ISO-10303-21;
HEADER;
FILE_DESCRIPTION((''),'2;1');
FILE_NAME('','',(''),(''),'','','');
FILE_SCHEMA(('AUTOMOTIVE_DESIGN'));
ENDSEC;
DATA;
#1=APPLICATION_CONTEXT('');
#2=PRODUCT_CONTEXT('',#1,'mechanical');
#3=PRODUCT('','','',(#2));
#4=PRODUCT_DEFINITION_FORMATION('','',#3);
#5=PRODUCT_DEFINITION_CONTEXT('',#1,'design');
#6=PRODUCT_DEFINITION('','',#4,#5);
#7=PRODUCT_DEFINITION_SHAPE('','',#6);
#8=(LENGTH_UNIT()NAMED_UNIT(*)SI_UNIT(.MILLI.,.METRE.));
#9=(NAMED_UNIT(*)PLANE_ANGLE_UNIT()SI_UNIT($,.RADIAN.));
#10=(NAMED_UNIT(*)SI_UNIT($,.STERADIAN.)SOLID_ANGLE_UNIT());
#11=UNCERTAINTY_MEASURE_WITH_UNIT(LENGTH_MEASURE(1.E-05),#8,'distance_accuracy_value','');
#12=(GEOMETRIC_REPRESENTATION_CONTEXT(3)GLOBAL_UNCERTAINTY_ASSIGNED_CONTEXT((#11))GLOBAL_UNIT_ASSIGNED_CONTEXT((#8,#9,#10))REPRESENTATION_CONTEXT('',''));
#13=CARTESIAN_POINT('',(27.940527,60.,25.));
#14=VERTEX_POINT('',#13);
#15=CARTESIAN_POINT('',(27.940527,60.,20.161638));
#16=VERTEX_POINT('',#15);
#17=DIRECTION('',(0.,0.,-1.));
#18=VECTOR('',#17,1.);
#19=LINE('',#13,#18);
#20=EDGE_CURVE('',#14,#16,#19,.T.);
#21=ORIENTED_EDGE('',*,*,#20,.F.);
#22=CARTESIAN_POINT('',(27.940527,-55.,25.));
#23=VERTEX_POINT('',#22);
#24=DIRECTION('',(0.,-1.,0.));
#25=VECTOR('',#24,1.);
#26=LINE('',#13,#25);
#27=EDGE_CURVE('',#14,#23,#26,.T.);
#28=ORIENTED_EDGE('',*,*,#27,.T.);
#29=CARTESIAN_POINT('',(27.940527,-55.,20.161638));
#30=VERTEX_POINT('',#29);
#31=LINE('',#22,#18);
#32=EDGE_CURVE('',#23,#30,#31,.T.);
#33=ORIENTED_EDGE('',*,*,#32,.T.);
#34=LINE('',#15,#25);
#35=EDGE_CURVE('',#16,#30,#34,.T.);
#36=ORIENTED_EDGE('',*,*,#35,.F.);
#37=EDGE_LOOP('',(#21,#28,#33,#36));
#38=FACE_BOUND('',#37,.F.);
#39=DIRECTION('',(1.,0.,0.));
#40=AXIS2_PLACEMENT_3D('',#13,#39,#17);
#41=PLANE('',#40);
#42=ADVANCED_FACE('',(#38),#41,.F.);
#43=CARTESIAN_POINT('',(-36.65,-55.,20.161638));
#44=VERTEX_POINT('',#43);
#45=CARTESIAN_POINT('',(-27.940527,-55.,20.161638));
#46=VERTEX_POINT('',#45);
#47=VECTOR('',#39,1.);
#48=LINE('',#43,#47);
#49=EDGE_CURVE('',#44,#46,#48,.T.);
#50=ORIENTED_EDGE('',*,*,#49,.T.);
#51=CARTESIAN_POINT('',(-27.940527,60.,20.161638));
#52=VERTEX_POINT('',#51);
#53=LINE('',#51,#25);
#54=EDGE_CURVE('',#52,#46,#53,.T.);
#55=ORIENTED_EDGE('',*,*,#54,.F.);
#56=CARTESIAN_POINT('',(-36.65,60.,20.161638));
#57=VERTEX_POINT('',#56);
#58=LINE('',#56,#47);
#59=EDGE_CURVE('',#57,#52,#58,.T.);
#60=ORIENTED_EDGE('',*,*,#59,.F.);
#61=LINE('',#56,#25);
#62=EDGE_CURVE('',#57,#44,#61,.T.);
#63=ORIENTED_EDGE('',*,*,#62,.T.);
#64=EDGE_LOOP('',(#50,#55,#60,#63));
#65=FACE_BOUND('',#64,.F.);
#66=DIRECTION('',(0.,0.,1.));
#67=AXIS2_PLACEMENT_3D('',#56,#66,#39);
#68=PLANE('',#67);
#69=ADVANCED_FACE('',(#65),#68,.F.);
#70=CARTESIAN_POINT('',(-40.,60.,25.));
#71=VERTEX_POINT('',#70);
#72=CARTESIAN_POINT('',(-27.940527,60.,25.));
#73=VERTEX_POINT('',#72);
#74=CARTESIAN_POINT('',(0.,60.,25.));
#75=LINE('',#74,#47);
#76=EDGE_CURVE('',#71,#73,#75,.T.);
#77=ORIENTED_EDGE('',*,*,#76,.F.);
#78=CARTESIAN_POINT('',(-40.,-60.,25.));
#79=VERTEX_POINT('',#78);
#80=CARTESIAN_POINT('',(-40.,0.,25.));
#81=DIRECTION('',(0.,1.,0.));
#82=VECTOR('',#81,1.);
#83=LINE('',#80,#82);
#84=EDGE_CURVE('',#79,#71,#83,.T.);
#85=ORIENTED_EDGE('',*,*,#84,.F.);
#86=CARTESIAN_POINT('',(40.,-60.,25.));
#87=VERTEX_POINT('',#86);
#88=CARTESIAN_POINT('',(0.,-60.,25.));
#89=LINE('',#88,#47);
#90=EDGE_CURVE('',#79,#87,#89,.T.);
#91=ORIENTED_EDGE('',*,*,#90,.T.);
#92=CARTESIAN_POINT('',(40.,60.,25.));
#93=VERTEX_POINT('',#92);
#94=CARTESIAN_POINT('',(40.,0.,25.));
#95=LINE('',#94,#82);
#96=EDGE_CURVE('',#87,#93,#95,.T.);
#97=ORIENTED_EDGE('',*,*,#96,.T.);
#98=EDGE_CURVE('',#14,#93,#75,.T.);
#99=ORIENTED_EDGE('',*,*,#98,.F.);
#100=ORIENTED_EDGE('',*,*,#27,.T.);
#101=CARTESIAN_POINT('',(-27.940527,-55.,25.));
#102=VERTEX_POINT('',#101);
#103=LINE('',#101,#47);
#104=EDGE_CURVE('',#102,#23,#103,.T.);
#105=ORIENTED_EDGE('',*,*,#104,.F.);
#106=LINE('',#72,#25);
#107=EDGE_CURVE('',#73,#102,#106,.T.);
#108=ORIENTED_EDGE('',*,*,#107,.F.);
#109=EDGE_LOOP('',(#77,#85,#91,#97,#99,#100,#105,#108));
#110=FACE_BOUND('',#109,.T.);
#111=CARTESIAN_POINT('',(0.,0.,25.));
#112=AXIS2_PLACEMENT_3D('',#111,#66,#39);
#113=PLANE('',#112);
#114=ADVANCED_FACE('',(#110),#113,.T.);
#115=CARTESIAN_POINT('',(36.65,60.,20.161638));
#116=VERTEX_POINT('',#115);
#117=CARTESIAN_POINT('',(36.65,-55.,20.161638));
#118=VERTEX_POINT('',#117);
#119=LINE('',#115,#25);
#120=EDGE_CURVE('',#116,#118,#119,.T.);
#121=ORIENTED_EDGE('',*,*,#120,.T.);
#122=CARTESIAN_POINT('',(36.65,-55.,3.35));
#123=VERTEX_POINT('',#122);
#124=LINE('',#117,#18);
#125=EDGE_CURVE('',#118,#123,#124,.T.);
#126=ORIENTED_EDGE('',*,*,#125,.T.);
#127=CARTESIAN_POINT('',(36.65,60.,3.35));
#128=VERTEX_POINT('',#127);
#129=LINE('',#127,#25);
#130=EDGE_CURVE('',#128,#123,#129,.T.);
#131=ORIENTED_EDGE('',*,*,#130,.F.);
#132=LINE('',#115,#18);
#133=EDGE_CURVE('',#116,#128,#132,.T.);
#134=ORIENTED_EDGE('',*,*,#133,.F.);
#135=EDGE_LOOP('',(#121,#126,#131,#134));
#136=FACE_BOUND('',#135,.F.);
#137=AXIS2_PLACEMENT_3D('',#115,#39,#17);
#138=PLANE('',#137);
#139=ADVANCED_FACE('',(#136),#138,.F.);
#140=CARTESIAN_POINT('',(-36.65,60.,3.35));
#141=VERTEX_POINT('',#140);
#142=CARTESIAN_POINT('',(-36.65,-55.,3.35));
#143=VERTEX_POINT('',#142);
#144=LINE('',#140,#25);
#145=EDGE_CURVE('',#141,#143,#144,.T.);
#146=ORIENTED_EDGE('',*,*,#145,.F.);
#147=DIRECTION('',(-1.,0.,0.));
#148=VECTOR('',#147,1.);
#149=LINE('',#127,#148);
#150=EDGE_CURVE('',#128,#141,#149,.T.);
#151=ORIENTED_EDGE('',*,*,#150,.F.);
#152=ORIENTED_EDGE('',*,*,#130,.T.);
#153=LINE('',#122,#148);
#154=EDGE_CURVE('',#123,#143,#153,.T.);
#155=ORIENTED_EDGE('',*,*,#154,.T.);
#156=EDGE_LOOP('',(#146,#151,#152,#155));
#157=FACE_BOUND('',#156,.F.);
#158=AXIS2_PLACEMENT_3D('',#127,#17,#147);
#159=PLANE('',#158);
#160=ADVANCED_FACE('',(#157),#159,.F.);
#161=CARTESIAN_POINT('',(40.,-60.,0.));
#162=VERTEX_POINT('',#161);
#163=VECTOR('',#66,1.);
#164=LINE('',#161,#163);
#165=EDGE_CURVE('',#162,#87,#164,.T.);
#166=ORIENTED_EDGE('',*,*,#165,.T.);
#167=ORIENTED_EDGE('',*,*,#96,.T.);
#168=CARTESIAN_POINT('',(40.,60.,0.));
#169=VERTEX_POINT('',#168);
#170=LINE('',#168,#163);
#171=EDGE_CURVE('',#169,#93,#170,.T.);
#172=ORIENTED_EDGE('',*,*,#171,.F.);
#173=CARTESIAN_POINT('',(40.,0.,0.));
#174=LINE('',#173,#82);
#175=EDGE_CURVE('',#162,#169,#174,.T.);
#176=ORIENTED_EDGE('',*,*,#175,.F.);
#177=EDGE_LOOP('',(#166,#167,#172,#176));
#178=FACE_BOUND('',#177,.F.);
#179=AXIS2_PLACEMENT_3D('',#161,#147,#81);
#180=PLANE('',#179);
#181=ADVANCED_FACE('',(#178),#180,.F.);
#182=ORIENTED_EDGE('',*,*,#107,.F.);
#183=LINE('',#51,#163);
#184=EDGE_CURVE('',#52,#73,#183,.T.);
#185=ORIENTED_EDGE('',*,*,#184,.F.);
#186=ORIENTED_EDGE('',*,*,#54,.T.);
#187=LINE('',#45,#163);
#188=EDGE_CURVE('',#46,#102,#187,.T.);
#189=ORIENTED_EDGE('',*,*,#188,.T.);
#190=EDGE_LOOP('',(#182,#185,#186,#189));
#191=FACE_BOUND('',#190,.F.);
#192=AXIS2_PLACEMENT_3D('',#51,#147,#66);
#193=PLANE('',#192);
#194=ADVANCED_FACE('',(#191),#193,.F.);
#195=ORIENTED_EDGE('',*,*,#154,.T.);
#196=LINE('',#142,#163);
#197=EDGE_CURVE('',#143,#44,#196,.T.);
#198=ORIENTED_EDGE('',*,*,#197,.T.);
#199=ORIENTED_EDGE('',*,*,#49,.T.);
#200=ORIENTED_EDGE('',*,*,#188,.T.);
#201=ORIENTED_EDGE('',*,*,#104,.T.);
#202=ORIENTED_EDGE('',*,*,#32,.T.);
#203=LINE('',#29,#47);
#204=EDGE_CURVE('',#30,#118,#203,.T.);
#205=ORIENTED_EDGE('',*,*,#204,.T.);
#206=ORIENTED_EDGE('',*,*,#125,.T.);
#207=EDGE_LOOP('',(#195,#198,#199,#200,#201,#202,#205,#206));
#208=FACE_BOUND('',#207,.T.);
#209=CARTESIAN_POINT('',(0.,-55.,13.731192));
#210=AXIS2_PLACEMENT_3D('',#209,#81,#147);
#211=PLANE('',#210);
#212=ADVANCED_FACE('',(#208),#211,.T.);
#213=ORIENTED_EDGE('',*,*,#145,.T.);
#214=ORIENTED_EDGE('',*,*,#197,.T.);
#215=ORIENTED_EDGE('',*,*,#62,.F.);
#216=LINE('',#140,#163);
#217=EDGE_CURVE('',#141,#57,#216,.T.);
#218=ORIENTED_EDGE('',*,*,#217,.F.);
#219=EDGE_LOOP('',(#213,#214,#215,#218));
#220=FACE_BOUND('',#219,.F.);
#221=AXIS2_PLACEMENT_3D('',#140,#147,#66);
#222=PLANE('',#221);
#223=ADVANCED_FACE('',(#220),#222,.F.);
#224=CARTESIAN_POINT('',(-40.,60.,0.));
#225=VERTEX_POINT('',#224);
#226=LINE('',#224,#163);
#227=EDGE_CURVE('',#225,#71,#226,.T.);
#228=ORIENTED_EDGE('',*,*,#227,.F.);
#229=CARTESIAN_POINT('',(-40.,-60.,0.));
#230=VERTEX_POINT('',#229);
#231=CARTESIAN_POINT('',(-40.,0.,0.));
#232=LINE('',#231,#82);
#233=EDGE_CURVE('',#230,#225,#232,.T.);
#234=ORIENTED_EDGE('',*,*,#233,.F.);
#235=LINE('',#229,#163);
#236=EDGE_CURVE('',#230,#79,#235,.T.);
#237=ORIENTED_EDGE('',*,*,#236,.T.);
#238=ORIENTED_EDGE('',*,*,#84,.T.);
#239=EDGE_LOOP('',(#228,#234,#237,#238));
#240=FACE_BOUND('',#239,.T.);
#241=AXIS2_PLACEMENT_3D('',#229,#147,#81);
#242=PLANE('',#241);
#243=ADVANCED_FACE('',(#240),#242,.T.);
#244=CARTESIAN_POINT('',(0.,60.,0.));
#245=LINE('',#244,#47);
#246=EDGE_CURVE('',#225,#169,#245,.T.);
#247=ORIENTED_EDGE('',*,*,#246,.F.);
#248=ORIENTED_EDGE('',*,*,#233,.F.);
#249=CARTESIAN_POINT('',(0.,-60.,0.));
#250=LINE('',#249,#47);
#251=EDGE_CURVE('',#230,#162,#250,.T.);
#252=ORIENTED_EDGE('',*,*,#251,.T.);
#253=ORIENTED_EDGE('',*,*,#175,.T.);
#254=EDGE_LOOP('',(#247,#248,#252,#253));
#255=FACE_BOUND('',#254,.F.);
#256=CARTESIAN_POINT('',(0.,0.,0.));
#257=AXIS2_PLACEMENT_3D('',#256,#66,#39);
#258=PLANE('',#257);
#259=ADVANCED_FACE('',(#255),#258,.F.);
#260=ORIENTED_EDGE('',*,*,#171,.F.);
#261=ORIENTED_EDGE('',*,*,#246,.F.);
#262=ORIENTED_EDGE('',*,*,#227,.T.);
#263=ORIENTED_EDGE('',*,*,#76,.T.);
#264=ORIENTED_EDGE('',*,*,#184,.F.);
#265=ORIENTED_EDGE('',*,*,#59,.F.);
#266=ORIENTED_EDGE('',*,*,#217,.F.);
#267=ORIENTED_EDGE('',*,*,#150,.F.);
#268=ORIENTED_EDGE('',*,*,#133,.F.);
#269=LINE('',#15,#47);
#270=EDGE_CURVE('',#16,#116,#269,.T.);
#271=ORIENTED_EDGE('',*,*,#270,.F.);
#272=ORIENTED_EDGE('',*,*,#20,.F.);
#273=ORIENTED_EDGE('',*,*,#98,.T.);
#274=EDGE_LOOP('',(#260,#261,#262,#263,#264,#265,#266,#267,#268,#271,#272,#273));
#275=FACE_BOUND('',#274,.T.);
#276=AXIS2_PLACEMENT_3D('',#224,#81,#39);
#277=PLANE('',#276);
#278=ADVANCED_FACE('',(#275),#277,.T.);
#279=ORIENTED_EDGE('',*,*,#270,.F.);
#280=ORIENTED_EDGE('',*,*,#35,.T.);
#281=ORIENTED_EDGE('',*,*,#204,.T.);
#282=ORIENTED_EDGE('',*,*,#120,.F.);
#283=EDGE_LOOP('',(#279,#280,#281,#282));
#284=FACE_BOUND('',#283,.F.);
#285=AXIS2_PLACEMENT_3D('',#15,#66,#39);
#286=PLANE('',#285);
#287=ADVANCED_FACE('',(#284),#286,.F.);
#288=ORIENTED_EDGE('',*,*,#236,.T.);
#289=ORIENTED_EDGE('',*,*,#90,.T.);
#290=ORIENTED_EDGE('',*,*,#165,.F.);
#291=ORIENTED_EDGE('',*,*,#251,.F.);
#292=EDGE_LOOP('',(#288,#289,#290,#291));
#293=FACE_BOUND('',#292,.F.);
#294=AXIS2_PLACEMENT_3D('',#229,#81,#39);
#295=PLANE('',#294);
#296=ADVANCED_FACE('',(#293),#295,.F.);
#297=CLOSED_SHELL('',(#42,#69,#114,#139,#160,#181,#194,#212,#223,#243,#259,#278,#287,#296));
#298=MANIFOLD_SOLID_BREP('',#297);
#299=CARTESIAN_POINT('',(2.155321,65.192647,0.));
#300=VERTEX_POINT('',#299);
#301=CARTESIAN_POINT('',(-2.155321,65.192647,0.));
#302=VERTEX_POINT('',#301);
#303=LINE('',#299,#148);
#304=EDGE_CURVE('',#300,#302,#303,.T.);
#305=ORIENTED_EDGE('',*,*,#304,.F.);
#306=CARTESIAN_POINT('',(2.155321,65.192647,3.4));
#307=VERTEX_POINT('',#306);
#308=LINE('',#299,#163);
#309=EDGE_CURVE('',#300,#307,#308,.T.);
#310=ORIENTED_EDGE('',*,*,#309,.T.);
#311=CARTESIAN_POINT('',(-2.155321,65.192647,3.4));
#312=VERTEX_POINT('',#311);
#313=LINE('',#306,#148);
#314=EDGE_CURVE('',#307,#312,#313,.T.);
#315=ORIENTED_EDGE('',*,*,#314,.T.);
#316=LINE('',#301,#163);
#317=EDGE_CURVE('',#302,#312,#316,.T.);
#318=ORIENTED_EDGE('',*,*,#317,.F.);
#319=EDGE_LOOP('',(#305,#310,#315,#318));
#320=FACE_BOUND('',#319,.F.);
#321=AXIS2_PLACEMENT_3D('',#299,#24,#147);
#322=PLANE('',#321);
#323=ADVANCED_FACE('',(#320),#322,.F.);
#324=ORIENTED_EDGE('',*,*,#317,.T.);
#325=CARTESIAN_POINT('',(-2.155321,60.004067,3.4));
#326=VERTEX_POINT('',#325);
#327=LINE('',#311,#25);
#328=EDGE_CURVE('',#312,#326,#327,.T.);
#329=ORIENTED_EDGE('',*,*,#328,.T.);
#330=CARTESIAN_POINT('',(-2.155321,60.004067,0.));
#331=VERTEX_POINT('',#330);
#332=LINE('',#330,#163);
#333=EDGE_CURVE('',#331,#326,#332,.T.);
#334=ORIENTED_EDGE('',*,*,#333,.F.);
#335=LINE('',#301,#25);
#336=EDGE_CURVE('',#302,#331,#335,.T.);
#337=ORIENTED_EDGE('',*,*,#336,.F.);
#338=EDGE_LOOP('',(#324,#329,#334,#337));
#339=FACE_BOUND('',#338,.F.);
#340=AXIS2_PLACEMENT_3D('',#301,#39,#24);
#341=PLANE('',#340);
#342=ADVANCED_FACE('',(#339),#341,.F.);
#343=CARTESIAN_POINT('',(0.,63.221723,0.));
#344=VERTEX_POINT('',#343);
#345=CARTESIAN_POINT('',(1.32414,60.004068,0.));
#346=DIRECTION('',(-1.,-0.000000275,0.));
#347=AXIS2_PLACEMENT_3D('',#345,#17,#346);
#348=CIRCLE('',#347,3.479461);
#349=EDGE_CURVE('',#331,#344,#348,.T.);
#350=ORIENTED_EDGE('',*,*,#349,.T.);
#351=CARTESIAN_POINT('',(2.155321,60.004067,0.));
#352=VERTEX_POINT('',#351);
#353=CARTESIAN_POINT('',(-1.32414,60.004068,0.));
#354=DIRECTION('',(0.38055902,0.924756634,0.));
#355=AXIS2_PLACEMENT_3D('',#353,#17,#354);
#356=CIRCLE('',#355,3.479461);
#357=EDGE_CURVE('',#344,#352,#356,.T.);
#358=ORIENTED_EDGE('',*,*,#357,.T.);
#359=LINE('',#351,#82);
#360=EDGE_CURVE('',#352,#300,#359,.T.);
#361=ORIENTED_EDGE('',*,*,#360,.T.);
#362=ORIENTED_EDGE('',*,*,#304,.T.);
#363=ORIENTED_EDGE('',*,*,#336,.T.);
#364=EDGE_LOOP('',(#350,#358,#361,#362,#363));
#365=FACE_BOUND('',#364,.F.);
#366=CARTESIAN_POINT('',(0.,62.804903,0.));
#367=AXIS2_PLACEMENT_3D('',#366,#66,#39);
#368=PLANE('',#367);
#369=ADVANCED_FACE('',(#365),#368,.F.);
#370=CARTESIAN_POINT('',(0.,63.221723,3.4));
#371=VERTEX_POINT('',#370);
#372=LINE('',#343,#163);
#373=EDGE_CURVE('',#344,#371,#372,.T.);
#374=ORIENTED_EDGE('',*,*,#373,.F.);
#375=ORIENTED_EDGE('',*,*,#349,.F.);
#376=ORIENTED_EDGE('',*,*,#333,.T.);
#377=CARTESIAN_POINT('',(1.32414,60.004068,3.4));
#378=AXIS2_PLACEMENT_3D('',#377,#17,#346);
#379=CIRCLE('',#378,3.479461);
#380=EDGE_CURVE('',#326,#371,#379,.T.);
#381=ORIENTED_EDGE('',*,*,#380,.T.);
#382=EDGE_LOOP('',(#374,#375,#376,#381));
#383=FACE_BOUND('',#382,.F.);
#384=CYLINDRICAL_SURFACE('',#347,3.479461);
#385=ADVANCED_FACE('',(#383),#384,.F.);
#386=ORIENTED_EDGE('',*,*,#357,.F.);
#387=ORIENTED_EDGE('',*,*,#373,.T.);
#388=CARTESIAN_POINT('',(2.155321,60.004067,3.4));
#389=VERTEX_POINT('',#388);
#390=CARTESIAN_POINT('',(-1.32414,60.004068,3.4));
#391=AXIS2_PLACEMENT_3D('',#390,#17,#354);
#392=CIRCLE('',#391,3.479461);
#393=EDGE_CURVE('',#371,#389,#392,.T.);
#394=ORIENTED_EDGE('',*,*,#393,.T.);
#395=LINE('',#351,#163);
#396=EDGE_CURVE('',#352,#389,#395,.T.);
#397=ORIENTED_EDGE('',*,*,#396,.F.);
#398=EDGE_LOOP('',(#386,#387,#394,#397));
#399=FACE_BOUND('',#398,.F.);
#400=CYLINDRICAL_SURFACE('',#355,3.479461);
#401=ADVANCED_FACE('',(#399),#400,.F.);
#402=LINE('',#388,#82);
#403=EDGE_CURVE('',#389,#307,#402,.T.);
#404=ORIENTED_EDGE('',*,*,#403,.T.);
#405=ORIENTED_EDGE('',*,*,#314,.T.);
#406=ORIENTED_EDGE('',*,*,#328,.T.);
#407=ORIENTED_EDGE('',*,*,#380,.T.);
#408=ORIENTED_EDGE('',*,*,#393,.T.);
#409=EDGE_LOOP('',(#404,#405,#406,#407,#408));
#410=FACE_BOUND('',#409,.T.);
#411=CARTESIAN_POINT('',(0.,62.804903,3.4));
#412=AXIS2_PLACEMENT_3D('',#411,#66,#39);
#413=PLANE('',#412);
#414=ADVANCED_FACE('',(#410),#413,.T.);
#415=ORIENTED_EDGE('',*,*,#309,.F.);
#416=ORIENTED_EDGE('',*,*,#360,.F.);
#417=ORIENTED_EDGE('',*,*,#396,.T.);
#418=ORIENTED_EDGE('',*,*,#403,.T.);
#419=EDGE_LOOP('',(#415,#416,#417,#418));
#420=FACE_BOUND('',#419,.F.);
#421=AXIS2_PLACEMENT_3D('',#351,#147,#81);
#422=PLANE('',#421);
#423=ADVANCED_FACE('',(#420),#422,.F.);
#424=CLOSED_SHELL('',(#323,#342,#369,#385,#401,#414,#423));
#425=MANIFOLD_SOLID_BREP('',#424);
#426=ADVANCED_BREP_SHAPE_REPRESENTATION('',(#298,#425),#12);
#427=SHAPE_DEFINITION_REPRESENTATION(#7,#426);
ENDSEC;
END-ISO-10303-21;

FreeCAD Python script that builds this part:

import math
import FreeCAD as App
import Part
import Sketcher

V = App.Vector


def add_polygon(sketch, points):
    """Adds a closed chain of lines whose ends are joined by coincident constraints."""
    first, n = sketch.GeometryCount, len(points)
    for a, b in zip(points, points[1:] + points[:1]):
        sketch.addGeometry(Part.LineSegment(App.Vector(*a, 0), App.Vector(*b, 0)), False)
    for i in range(n):
        sketch.addConstraint(Sketcher.Constraint("Coincident", first + i, 2, first + (i + 1) % n, 1))

doc = App.newDocument("Part")
body = doc.addObject("PartDesign::Body", "Body")

sketch1 = body.newObject("Sketcher::SketchObject", "Sketch")
sketch1.AttachmentSupport = (doc.getObject("XY_Plane"), [""])
sketch1.MapMode = "FlatFace"
add_polygon(sketch1, [(-40, 60), (-40, -60), (40, -60), (40, 60)])
sketch1.addConstraint([
    Sketcher.Constraint("Vertical", 0),
    Sketcher.Constraint("Horizontal", 1),
    Sketcher.Constraint("Vertical", 2),
    Sketcher.Constraint("Horizontal", 3),
    Sketcher.Constraint("Symmetric", 0, 2, 2, 2, -1, 1),
    Sketcher.Constraint("DistanceX", 1, 1, 1, 2, 80.0),
    Sketcher.Constraint("DistanceY", 0, 2, 0, 1, 120.0),
])
pad1 = body.newObject("PartDesign::Pad", "Pad")
pad1.Profile = sketch1
pad1.Length = 25

sketch2 = body.newObject("Sketcher::SketchObject", "Sketch001")
sketch2.AttachmentSupport = (doc.getObject("XZ_Plane"), [""])
sketch2.MapMode = "FlatFace"
sketch2.AttachmentOffset = App.Placement(V(0, 0, -60), App.Rotation())
add_polygon(sketch2, [(-36.6, 3.4), (-36.6, 20.2), (-27.9, 20.2), (-27.9, 25), (27.9, 25), (27.9, 20.2), (36.6, 20.2), (36.6, 3.4)])
sketch2.addConstraint([
    Sketcher.Constraint("Vertical", 0),
    Sketcher.Constraint("Horizontal", 1),
    Sketcher.Constraint("Vertical", 2),
    Sketcher.Constraint("Horizontal", 3),
    Sketcher.Constraint("Vertical", 4),
    Sketcher.Constraint("Horizontal", 5),
    Sketcher.Constraint("Vertical", 6),
    Sketcher.Constraint("Horizontal", 7),
    Sketcher.Constraint("Symmetric", 1, 2, 4, 2, -2),
    Sketcher.Constraint("Equal", 1, 5),
    Sketcher.Constraint("DistanceX", 7, 2, 7, 1, 73.3),
    Sketcher.Constraint("DistanceY", -1, 1, 2, 2, 25.0),
    Sketcher.Constraint("DistanceY", -1, 1, 6, 2, 3.35),
    Sketcher.Constraint("DistanceX", 1, 1, 1, 2, 8.709473),
    Sketcher.Constraint("DistanceY", 0, 1, 0, 2, 16.811638),
])
pocket1 = body.newObject("PartDesign::Pocket", "Pocket")
pocket1.Profile = sketch2
pocket1.Length = 115
pocket1.Reversed = True
body2 = doc.addObject("PartDesign::Body", "Body001")

sketch3 = body2.newObject("Sketcher::SketchObject", "Sketch002")
sketch3.AttachmentSupport = (doc.getObject("XY_Plane001"), [""])
sketch3.MapMode = "FlatFace"
sketch3.addGeometry([
    Part.ArcOfCircle(Part.Circle(V(-1.3, 60, 0), V(0, 0, 1), 3.5), math.radians(0), math.radians(68)),
    Part.LineSegment(V(2.2, 60, 0), V(2.2, 65.2, 0)),
    Part.LineSegment(V(2.2, 65.2, 0), V(-2.2, 65.2, 0)),
    Part.LineSegment(V(-2.2, 65.2, 0), V(-2.2, 60, 0)),
    Part.ArcOfCircle(Part.Circle(V(1.3, 60, 0), V(0, 0, 1), 3.5), math.radians(112), math.radians(180)),
], False)
sketch3.addConstraint([
    Sketcher.Constraint("Tangent", 0, 1, 1, 1),
    Sketcher.Constraint("Coincident", 1, 2, 2, 1),
    Sketcher.Constraint("Coincident", 2, 2, 3, 1),
    Sketcher.Constraint("Tangent", 3, 2, 4, 2),
    Sketcher.Constraint("Coincident", 4, 1, 0, 2),
    Sketcher.Constraint("Vertical", 1),
    Sketcher.Constraint("Horizontal", 2),
    Sketcher.Constraint("Vertical", 3),
    Sketcher.Constraint("Equal", 0, 4),
    Sketcher.Constraint("Symmetric", 0, 3, 4, 3, -2),
    Sketcher.Constraint("Radius", 0, 3.479461),
    Sketcher.Constraint("DistanceX", 2, 2, 2, 1, 4.310642),
    Sketcher.Constraint("DistanceY", 1, 1, 1, 2, 5.18858),
    Sketcher.Constraint("DistanceY", -1, 1, 0, 3, 60.004068),
])
pad2 = body2.newObject("PartDesign::Pad", "Pad001")
pad2.Profile = sketch3
pad2.Length = 3.4

doc.recompute()
